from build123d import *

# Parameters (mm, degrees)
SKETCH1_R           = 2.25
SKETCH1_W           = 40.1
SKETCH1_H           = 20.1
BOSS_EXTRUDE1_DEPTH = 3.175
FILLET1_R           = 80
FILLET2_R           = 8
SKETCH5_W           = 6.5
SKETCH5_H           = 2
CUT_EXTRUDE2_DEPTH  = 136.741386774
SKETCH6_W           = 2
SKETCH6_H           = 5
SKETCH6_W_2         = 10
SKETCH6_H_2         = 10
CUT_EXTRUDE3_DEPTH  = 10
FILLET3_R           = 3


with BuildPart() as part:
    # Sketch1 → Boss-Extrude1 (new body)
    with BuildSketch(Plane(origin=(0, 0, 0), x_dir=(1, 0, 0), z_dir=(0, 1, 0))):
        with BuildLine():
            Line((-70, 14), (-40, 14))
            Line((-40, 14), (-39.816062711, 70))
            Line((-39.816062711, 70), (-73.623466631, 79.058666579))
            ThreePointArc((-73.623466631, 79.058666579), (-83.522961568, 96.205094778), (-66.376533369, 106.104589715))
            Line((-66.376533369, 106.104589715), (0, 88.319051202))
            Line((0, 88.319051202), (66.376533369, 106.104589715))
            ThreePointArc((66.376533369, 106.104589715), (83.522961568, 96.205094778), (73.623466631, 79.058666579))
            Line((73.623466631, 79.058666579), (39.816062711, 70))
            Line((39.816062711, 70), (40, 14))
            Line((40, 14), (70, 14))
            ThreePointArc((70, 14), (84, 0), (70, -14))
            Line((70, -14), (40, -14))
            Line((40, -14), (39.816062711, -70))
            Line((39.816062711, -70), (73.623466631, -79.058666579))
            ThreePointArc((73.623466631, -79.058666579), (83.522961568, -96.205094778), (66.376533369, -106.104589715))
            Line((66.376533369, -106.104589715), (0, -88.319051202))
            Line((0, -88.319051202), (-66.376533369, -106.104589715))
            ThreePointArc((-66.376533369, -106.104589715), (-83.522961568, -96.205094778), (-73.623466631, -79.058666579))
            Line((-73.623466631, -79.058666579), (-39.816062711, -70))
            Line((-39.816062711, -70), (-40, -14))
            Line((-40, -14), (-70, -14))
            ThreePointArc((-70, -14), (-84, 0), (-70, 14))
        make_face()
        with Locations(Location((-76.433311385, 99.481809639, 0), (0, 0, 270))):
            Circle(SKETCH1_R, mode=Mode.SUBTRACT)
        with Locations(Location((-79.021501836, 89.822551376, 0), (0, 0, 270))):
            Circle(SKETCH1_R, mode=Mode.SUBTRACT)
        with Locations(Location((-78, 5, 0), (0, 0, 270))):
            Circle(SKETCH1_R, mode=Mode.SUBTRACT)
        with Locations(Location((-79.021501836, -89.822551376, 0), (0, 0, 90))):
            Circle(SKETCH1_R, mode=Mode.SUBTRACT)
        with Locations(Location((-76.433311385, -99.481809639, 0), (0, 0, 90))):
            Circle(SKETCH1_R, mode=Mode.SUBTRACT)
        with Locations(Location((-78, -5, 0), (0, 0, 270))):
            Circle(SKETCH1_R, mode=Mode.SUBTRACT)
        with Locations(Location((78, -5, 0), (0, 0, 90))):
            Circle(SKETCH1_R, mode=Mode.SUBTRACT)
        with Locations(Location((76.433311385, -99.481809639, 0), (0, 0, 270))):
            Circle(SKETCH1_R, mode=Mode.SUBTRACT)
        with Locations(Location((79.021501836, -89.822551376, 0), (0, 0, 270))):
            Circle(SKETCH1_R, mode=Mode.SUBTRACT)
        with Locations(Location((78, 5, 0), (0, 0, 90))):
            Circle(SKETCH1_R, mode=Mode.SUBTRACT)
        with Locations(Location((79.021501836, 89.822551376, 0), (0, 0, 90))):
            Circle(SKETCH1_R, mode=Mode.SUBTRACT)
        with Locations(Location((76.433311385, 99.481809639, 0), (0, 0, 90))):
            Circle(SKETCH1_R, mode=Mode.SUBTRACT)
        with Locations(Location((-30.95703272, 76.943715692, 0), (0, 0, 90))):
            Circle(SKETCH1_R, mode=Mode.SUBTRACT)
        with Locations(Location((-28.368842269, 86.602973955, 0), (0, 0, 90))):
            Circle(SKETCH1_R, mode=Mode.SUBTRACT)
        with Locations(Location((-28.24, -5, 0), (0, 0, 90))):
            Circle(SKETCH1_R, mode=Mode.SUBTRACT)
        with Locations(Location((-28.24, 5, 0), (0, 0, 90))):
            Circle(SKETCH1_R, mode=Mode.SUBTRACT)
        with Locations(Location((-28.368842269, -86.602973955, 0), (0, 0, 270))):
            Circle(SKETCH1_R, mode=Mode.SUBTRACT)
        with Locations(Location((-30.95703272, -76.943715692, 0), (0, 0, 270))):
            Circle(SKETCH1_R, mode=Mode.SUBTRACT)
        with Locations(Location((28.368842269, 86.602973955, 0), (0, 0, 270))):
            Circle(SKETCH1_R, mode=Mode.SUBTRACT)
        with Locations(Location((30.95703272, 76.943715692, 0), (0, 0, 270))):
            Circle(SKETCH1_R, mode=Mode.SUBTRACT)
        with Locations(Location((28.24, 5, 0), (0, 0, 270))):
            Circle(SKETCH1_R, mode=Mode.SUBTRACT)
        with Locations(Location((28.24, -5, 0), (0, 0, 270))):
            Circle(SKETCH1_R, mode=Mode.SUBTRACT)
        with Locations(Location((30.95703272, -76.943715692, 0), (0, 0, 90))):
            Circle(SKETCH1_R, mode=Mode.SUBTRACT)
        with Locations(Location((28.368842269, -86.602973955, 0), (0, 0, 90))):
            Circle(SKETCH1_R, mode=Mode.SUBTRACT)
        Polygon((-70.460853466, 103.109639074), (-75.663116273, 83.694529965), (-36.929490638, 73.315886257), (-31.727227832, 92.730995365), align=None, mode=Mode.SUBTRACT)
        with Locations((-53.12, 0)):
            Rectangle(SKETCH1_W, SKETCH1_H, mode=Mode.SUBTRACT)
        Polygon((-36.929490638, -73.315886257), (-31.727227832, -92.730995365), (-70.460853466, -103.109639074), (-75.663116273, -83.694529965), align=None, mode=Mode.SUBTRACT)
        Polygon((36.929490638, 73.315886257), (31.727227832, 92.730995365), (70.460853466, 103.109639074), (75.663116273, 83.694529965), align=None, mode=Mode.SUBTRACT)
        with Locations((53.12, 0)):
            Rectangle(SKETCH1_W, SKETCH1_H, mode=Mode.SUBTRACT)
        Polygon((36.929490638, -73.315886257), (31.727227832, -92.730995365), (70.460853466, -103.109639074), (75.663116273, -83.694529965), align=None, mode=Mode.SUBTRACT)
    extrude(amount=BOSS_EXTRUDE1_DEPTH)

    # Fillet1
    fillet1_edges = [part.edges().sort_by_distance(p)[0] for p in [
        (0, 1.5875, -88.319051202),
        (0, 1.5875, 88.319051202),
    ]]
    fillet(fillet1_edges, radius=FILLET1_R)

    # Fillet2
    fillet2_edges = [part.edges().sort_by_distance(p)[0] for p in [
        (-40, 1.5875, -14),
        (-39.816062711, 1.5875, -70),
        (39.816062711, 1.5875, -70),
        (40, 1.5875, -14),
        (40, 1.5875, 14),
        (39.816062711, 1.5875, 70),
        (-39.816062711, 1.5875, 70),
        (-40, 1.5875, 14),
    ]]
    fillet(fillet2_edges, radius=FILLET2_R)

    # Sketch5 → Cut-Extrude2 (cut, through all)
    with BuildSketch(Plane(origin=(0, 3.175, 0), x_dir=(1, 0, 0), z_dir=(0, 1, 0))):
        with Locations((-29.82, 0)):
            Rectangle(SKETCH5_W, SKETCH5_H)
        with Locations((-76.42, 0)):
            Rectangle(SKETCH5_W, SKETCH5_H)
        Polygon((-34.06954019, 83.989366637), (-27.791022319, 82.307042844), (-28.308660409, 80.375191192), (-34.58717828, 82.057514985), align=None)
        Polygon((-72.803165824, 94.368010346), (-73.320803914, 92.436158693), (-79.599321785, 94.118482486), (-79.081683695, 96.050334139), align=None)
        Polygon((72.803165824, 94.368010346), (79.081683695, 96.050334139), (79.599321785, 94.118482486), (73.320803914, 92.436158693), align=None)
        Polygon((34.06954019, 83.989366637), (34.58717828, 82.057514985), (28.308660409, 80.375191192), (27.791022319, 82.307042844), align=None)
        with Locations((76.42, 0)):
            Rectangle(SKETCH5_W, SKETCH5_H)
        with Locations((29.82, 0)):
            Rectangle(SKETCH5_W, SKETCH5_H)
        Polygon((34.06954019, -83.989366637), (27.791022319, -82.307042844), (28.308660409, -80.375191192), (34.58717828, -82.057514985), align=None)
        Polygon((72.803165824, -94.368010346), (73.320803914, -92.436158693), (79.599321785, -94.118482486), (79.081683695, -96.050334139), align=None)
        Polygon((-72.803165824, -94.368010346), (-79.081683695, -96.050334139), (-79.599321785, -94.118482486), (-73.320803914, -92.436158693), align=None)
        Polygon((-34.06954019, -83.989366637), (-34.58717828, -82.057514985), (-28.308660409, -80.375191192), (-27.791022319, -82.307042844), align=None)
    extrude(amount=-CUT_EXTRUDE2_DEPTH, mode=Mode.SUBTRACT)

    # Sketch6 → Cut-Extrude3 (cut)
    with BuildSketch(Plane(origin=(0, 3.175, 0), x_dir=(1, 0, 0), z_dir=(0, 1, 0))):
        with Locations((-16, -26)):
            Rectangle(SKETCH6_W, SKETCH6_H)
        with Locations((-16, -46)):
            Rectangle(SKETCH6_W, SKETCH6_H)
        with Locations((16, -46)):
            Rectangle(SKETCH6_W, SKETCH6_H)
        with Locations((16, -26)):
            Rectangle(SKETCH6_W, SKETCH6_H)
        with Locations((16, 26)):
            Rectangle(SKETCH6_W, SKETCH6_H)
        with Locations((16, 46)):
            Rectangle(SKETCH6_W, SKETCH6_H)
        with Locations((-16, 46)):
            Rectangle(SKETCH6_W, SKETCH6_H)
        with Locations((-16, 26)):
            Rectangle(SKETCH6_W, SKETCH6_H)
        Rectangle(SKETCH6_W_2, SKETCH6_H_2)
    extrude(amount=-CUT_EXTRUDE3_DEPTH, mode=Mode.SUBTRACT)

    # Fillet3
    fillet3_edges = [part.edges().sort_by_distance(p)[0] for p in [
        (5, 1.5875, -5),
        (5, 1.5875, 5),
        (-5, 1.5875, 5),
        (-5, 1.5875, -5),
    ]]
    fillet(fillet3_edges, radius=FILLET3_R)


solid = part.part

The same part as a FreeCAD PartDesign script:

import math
import FreeCAD as App
import Part
import Sketcher
Q = App.Units.Quantity


def edges_at(feature, points):
    """Names of the edges that pass closest to the given points."""
    edges = feature.Shape.Edges
    near = lambda p: min(range(len(edges)), key=lambda i: edges[i].distToShape(Part.Vertex(*p))[0])
    return sorted({f"Edge{near(p) + 1}" for p in points})

doc = App.newDocument("Part")
body = doc.addObject("PartDesign::Body", "Body")

sketch1 = body.newObject("Sketcher::SketchObject", "Sketch")
sketch1.AttachmentSupport = (doc.getObject("XZ_Plane"), [""])
sketch1.MapMode = "FlatFace"
sketch1.addGeometry([
    Part.LineSegment(App.Vector(-40, -14, 0), App.Vector(-70, -14, 0)),
    Part.ArcOfCircle(Part.Circle(App.Vector(-70, 0, 0), App.Vector(0, 0, 1), 14), math.radians(90), math.radians(270)),
    Part.LineSegment(App.Vector(-70, 14, 0), App.Vector(-40, 14, 0)),
    Part.LineSegment(App.Vector(-40, 14, 0), App.Vector(-39.8, 70, 0)),
    Part.LineSegment(App.Vector(-39.8, 70, 0), App.Vector(-73.6, 79.1, 0)),
    Part.ArcOfCircle(Part.Circle(App.Vector(-70, 92.6, 0), App.Vector(0, 0, 1), 14), math.radians(75), math.radians(255)),
    Part.LineSegment(App.Vector(-66.4, 106.1, 0), App.Vector(0, 88.3, 0)),
    Part.LineSegment(App.Vector(0, 88.3, 0), App.Vector(66.4, 106.1, 0)),
    Part.ArcOfCircle(Part.Circle(App.Vector(70, 92.6, 0), App.Vector(0, 0, 1), 14), math.radians(-75), math.radians(105)),
    Part.LineSegment(App.Vector(73.6, 79.1, 0), App.Vector(39.8, 70, 0)),
    Part.LineSegment(App.Vector(39.8, 70, 0), App.Vector(40, 14, 0)),
    Part.LineSegment(App.Vector(40, 14, 0), App.Vector(70, 14, 0)),
    Part.ArcOfCircle(Part.Circle(App.Vector(70, 0, 0), App.Vector(0, 0, 1), 14), math.radians(-90), math.radians(90)),
    Part.LineSegment(App.Vector(70, -14, 0), App.Vector(40, -14, 0)),
    Part.LineSegment(App.Vector(40, -14, 0), App.Vector(39.8, -70, 0)),
    Part.LineSegment(App.Vector(39.8, -70, 0), App.Vector(73.6, -79.1, 0)),
    Part.ArcOfCircle(Part.Circle(App.Vector(70, -92.6, 0), App.Vector(0, 0, 1), 14), math.radians(-105), math.radians(75)),
    Part.LineSegment(App.Vector(66.4, -106.1, 0), App.Vector(0, -88.3, 0)),
    Part.LineSegment(App.Vector(0, -88.3, 0), App.Vector(-66.4, -106.1, 0)),
    Part.ArcOfCircle(Part.Circle(App.Vector(-70, -92.6, 0), App.Vector(0, 0, 1), 14), math.radians(105), math.radians(285)),
    Part.LineSegment(App.Vector(-73.6, -79.1, 0), App.Vector(-39.8, -70, 0)),
    Part.LineSegment(App.Vector(-39.8, -70, 0), App.Vector(-40, -14, 0)),
    Part.Circle(App.Vector(76.4, 99.5, 0), App.Vector(0, 0, 1), 2.2),
    Part.Circle(App.Vector(79, 89.8, 0), App.Vector(0, 0, 1), 2.2),
    Part.LineSegment(App.Vector(36.9, 73.3, 0), App.Vector(75.7, 83.7, 0)),
    Part.LineSegment(App.Vector(75.7, 83.7, 0), App.Vector(70.5, 103.1, 0)),
    Part.LineSegment(App.Vector(70.5, 103.1, 0), App.Vector(31.7, 92.7, 0)),
    Part.LineSegment(App.Vector(31.7, 92.7, 0), App.Vector(36.9, 73.3, 0)),
    Part.Circle(App.Vector(28.4, 86.6, 0), App.Vector(0, 0, 1), 2.2),
    Part.Circle(App.Vector(31, 76.9, 0), App.Vector(0, 0, 1), 2.2),
    Part.Circle(App.Vector(78, 5, 0), App.Vector(0, 0, 1), 2.2),
    Part.Circle(App.Vector(28.2, 5, 0), App.Vector(0, 0, 1), 2.2),
    Part.Circle(App.Vector(-28.4, 86.6, 0), App.Vector(0, 0, 1), 2.2),
    Part.Circle(App.Vector(-31, 76.9, 0), App.Vector(0, 0, 1), 2.2),
    Part.LineSegment(App.Vector(-36.9, 73.3, 0), App.Vector(-31.7, 92.7, 0)),
    Part.LineSegment(App.Vector(-31.7, 92.7, 0), App.Vector(-70.5, 103.1, 0)),
    Part.LineSegment(App.Vector(-70.5, 103.1, 0), App.Vector(-75.7, 83.7, 0)),
    Part.LineSegment(App.Vector(-75.7, 83.7, 0), App.Vector(-36.9, 73.3, 0)),
    Part.Circle(App.Vector(-76.4, 99.5, 0), App.Vector(0, 0, 1), 2.2),
    Part.Circle(App.Vector(-79, 89.8, 0), App.Vector(0, 0, 1), 2.2),
    Part.Circle(App.Vector(-28.2, 5, 0), App.Vector(0, 0, 1), 2.2),
    Part.Circle(App.Vector(-78, 5, 0), App.Vector(0, 0, 1), 2.2),
    Part.Circle(App.Vector(78, -5, 0), App.Vector(0, 0, 1), 2.2),
    Part.LineSegment(App.Vector(33.1, 10.1, 0), App.Vector(33.1, -10.1, 0)),
    Part.LineSegment(App.Vector(33.1, -10.1, 0), App.Vector(73.2, -10.1, 0)),
    Part.LineSegment(App.Vector(73.2, -10.1, 0), App.Vector(73.2, 10.1, 0)),
    Part.LineSegment(App.Vector(73.2, 10.1, 0), App.Vector(33.1, 10.1, 0)),
    Part.Circle(App.Vector(28.2, -5, 0), App.Vector(0, 0, 1), 2.2),
    Part.Circle(App.Vector(79, -89.8, 0), App.Vector(0, 0, 1), 2.2),
    Part.Circle(App.Vector(76.4, -99.5, 0), App.Vector(0, 0, 1), 2.2),
    Part.LineSegment(App.Vector(36.9, -73.3, 0), App.Vector(31.7, -92.7, 0)),
    Part.LineSegment(App.Vector(31.7, -92.7, 0), App.Vector(70.5, -103.1, 0)),
    Part.LineSegment(App.Vector(70.5, -103.1, 0), App.Vector(75.7, -83.7, 0)),
    Part.LineSegment(App.Vector(75.7, -83.7, 0), App.Vector(36.9, -73.3, 0)),
    Part.Circle(App.Vector(31, -76.9, 0), App.Vector(0, 0, 1), 2.2),
    Part.Circle(App.Vector(28.4, -86.6, 0), App.Vector(0, 0, 1), 2.2),
    Part.Circle(App.Vector(-28.2, -5, 0), App.Vector(0, 0, 1), 2.2),
    Part.LineSegment(App.Vector(-73.2, 10.1, 0), App.Vector(-73.2, -10.1, 0)),
    Part.LineSegment(App.Vector(-73.2, -10.1, 0), App.Vector(-33.1, -10.1, 0)),
    Part.LineSegment(App.Vector(-33.1, -10.1, 0), App.Vector(-33.1, 10.1, 0)),
    Part.LineSegment(App.Vector(-33.1, 10.1, 0), App.Vector(-73.2, 10.1, 0)),
    Part.Circle(App.Vector(-78, -5, 0), App.Vector(0, 0, 1), 2.2),
    Part.Circle(App.Vector(-31, -76.9, 0), App.Vector(0, 0, 1), 2.2),
    Part.Circle(App.Vector(-28.4, -86.6, 0), App.Vector(0, 0, 1), 2.2),
    Part.LineSegment(App.Vector(-70.5, -103.1, 0), App.Vector(-31.7, -92.7, 0)),
    Part.LineSegment(App.Vector(-31.7, -92.7, 0), App.Vector(-36.9, -73.3, 0)),
    Part.LineSegment(App.Vector(-36.9, -73.3, 0), App.Vector(-75.7, -83.7, 0)),
    Part.LineSegment(App.Vector(-75.7, -83.7, 0), App.Vector(-70.5, -103.1, 0)),
    Part.Circle(App.Vector(-79, -89.8, 0), App.Vector(0, 0, 1), 2.2),
    Part.Circle(App.Vector(-76.4, -99.5, 0), App.Vector(0, 0, 1), 2.2),
], False)
sketch1.addConstraint([
    Sketcher.Constraint("Tangent", 0, 2, 1, 2),
    Sketcher.Constraint("Tangent", 1, 1, 2, 1),
    Sketcher.Constraint("Coincident", 2, 2, 3, 1),
    Sketcher.Constraint("Coincident", 3, 2, 4, 1),
    Sketcher.Constraint("Tangent", 4, 2, 5, 2),
    Sketcher.Constraint("Tangent", 5, 1, 6, 1),
    Sketcher.Constraint("Coincident", 6, 2, 7, 1),
    Sketcher.Constraint("Tangent", 7, 2, 8, 2),
    Sketcher.Constraint("Tangent", 8, 1, 9, 1),
    Sketcher.Constraint("Coincident", 9, 2, 10, 1),
    Sketcher.Constraint("Coincident", 10, 2, 11, 1),
    Sketcher.Constraint("Tangent", 11, 2, 12, 2),
    Sketcher.Constraint("Tangent", 12, 1, 13, 1),
    Sketcher.Constraint("Coincident", 13, 2, 14, 1),
    Sketcher.Constraint("Coincident", 14, 2, 15, 1),
    Sketcher.Constraint("Tangent", 15, 2, 16, 2),
    Sketcher.Constraint("Tangent", 16, 1, 17, 1),
    Sketcher.Constraint("Coincident", 17, 2, 18, 1),
    Sketcher.Constraint("Tangent", 18, 2, 19, 2),
    Sketcher.Constraint("Tangent", 19, 1, 20, 1),
    Sketcher.Constraint("Coincident", 20, 2, 21, 1),
    Sketcher.Constraint("Coincident", 21, 2, 0, 1),
    Sketcher.Constraint("Coincident", 24, 2, 25, 1),
    Sketcher.Constraint("Coincident", 25, 2, 26, 1),
    Sketcher.Constraint("Coincident", 26, 2, 27, 1),
    Sketcher.Constraint("Coincident", 27, 2, 24, 1),
    Sketcher.Constraint("Coincident", 34, 2, 35, 1),
    Sketcher.Constraint("Coincident", 35, 2, 36, 1),
    Sketcher.Constraint("Coincident", 36, 2, 37, 1),
    Sketcher.Constraint("Coincident", 37, 2, 34, 1),
    Sketcher.Constraint("Coincident", 43, 2, 44, 1),
    Sketcher.Constraint("Coincident", 44, 2, 45, 1),
    Sketcher.Constraint("Coincident", 45, 2, 46, 1),
    Sketcher.Constraint("Coincident", 46, 2, 43, 1),
    Sketcher.Constraint("Coincident", 50, 2, 51, 1),
    Sketcher.Constraint("Coincident", 51, 2, 52, 1),
    Sketcher.Constraint("Coincident", 52, 2, 53, 1),
    Sketcher.Constraint("Coincident", 53, 2, 50, 1),
    Sketcher.Constraint("Coincident", 57, 2, 58, 1),
    Sketcher.Constraint("Coincident", 58, 2, 59, 1),
    Sketcher.Constraint("Coincident", 59, 2, 60, 1),
    Sketcher.Constraint("Coincident", 60, 2, 57, 1),
    Sketcher.Constraint("Coincident", 64, 2, 65, 1),
    Sketcher.Constraint("Coincident", 65, 2, 66, 1),
    Sketcher.Constraint("Coincident", 66, 2, 67, 1),
    Sketcher.Constraint("Coincident", 67, 2, 64, 1),
    Sketcher.Constraint("Horizontal", 0),
    Sketcher.Constraint("Horizontal", 2),
    Sketcher.Constraint("Horizontal", 11),
    Sketcher.Constraint("Horizontal", 13),
    Sketcher.Constraint("Vertical", 43),
    Sketcher.Constraint("Horizontal", 44),
    Sketcher.Constraint("Vertical", 45),
    Sketcher.Constraint("Horizontal", 46),
    Sketcher.Constraint("Vertical", 57),
    Sketcher.Constraint("Horizontal", 58),
    Sketcher.Constraint("Vertical", 59),
    Sketcher.Constraint("Horizontal", 60),
    Sketcher.Constraint("Equal", 1, 5),
    Sketcher.Constraint("Equal", 5, 8),
    Sketcher.Constraint("Equal", 8, 12),
    Sketcher.Constraint("Equal", 12, 16),
    Sketcher.Constraint("Equal", 16, 19),
    Sketcher.Constraint("Equal", 22, 23),
    Sketcher.Constraint("Equal", 23, 28),
    Sketcher.Constraint("Equal", 28, 29),
    Sketcher.Constraint("Equal", 29, 30),
    Sketcher.Constraint("Equal", 30, 31),
    Sketcher.Constraint("Equal", 31, 32),
    Sketcher.Constraint("Equal", 32, 33),
    Sketcher.Constraint("Equal", 33, 38),
    Sketcher.Constraint("Equal", 38, 39),
    Sketcher.Constraint("Equal", 39, 40),
    Sketcher.Constraint("Equal", 40, 41),
    Sketcher.Constraint("Equal", 41, 42),
    Sketcher.Constraint("Equal", 42, 47),
    Sketcher.Constraint("Equal", 47, 48),
    Sketcher.Constraint("Equal", 48, 49),
    Sketcher.Constraint("Equal", 49, 54),
    Sketcher.Constraint("Equal", 54, 55),
    Sketcher.Constraint("Equal", 55, 56),
    Sketcher.Constraint("Equal", 56, 61),
    Sketcher.Constraint("Equal", 61, 62),
    Sketcher.Constraint("Equal", 62, 63),
    Sketcher.Constraint("Equal", 63, 68),
    Sketcher.Constraint("Equal", 68, 69),
    Sketcher.Constraint("Symmetric", 1, 3, 12, 3, -1, 1),
    Sketcher.Constraint("Symmetric", 5, 3, 16, 3, -1, 1),
    Sketcher.Constraint("Symmetric", 8, 3, 19, 3, -1, 1),
    Sketcher.Constraint("Symmetric", 41, 3, 42, 3, -1, 1),
    Sketcher.Constraint("Symmetric", 40, 3, 47, 3, -1, 1),
    Sketcher.Constraint("Symmetric", 39, 3, 48, 3, -1, 1),
    Sketcher.Constraint("Symmetric", 38, 3, 49, 3, -1, 1),
    Sketcher.Constraint("Symmetric", 33, 3, 54, 3, -1, 1),
    Sketcher.Constraint("Symmetric", 32, 3, 55, 3, -1, 1),
    Sketcher.Constraint("Symmetric", 31, 3, 56, 3, -1, 1),
    Sketcher.Constraint("Symmetric", 30, 3, 61, 3, -1, 1),
    Sketcher.Constraint("Symmetric", 29, 3, 62, 3, -1, 1),
    Sketcher.Constraint("Symmetric", 28, 3, 63, 3, -1, 1),
    Sketcher.Constraint("Symmetric", 23, 3, 68, 3, -1, 1),
    Sketcher.Constraint("Symmetric", 22, 3, 69, 3, -1, 1),
    Sketcher.Constraint("Symmetric", 3, 2, 14, 2, -1, 1),
    Sketcher.Constraint("Symmetric", 6, 2, 17, 2, -1, 1),
    Sketcher.Constraint("Symmetric", 9, 2, 20, 2, -1, 1),
    Sketcher.Constraint("Symmetric", 34, 2, 50, 2, -1, 1),
    Sketcher.Constraint("Symmetric", 35, 2, 51, 2, -1, 1),
    Sketcher.Constraint("Symmetric", 36, 2, 52, 2, -1, 1),
    Sketcher.Constraint("Symmetric", 37, 2, 53, 2, -1, 1),
    Sketcher.Constraint("Symmetric", 45, 2, 57, 2, -1, 1),
    Sketcher.Constraint("Symmetric", 43, 2, 59, 2, -1, 1),
    Sketcher.Constraint("Symmetric", 26, 2, 64, 2, -1, 1),
    Sketcher.Constraint("Symmetric", 27, 2, 65, 2, -1, 1),
    Sketcher.Constraint("Symmetric", 24, 2, 66, 2, -1, 1),
    Sketcher.Constraint("Symmetric", 25, 2, 67, 2, -1, 1),
    Sketcher.Constraint("Symmetric", 5, 3, 8, 3, -2),
    Sketcher.Constraint("Symmetric", 28, 3, 32, 3, -2),
    Sketcher.Constraint("Symmetric", 29, 3, 33, 3, -2),
    Sketcher.Constraint("Symmetric", 22, 3, 38, 3, -2),
    Sketcher.Constraint("Symmetric", 23, 3, 39, 3, -2),
    Sketcher.Constraint("Symmetric", 31, 3, 40, 3, -2),
    Sketcher.Constraint("Symmetric", 30, 3, 41, 3, -2),
    Sketcher.Constraint("Symmetric", 3, 2, 9, 2, -2),
    Sketcher.Constraint("Symmetric", 2, 2, 10, 2, -2),
    Sketcher.Constraint("Symmetric", 26, 2, 34, 2, -2),
    Sketcher.Constraint("Symmetric", 25, 2, 35, 2, -2),
    Sketcher.Constraint("Symmetric", 24, 2, 36, 2, -2),
    Sketcher.Constraint("Symmetric", 27, 2, 37, 2, -2),
    Sketcher.Constraint("PointOnObject", 6, 2, -2),
    Sketcher.Constraint("Parallel", 4, 6),
    Sketcher.Constraint("Parallel", 3, 14),
    Sketcher.Constraint("Parallel", 10, 21),
    Sketcher.Constraint("Parallel", 20, 24),
    Sketcher.Constraint("Perpendicular", 24, 25),
    Sketcher.Constraint("Perpendicular", 25, 26),
    Sketcher.Constraint("Perpendicular", 26, 27),
    Sketcher.Constraint("Horizontal", 30, 3, 31, 3),
    Sketcher.Constraint("Horizontal", 44, 2, 57, 2),
    Sketcher.Constraint("Vertical", 1, 3, 5, 3),
    Sketcher.Constraint("Radius", 1, Q("14 mm")),
    Sketcher.Constraint("Diameter", 22, Q("4.5 mm")),
    Sketcher.Constraint("DistanceX", 0, 2, 0, 1, Q("30 mm")),
    Sketcher.Constraint("Angle", 4, Q("165 deg")),
    Sketcher.Constraint("Distance", 4, Q("35 mm")),
    Sketcher.Constraint("DistanceX", 44, 1, 44, 2, Q("40.1 mm")),
    Sketcher.Constraint("DistanceY", 43, 2, 43, 1, Q("20.1 mm")),
    Sketcher.Constraint("DistanceX", 1, 3, -1, 1, Q("70 mm")),
    Sketcher.Constraint("DistanceX", -1, 1, 30, 3, Q("78 mm")),
    Sketcher.Constraint("DistanceY", -1, 1, 30, 3, Q("5 mm")),
    Sketcher.Constraint("DistanceY", -1, 1, 3, 2, Q("70 mm")),
    Sketcher.Constraint("Distance", 24, Q("40.1 mm")),
    Sketcher.Constraint("Distance", 25, Q("20.1 mm")),
    Sketcher.Constraint("DistanceX", -1, 1, 31, 3, Q("28.24 mm")),
    Sketcher.Constraint("DistanceX", -1, 1, 43, 2, Q("33.07 mm")),
    Sketcher.Constraint("DistanceX", -1, 1, 23, 3, Q("79.021502 mm")),
    Sketcher.Constraint("DistanceX", -1, 1, 22, 3, Q("76.433311 mm")),
    Sketcher.Constraint("DistanceY", -1, 1, 22, 3, Q("99.48181 mm")),
    Sketcher.Constraint("DistanceY", -1, 1, 23, 3, Q("89.822551 mm")),
    Sketcher.Constraint("DistanceY", -1, 1, 24, 2, Q("83.69453 mm")),
    Sketcher.Constraint("DistanceX", -1, 1, 27, 2, Q("36.929491 mm")),
    Sketcher.Constraint("DistanceX", -1, 1, 28, 3, Q("28.368842 mm")),
    Sketcher.Constraint("DistanceY", -1, 1, 28, 3, Q("86.602974 mm")),
    Sketcher.Constraint("DistanceX", -1, 1, 29, 3, Q("30.957033 mm")),
    Sketcher.Constraint("DistanceY", -1, 1, 29, 3, Q("76.943716 mm")),
])
pad1 = body.newObject("PartDesign::Pad", "Pad")
pad1.Profile = sketch1
pad1.Length = 3.175
pad1.Reversed = True
doc.recompute()

fillet = body.newObject("PartDesign::Fillet", "Fillet")
fillet.Base = (pad1, edges_at(pad1, [(0, 1.587, -88.319), (0, 1.587, 88.319)]))
fillet.Radius = 80
doc.recompute()

fillet2 = body.newObject("PartDesign::Fillet", "Fillet001")
fillet2.Base = (fillet, edges_at(fillet, [
    (-40, 1.587, -14),
    (-39.816, 1.587, -70),
    (39.816, 1.587, -70),
    (40, 1.587, -14),
    (40, 1.587, 14),
    (39.816, 1.587, 70),
    (-39.816, 1.587, 70),
    (-40, 1.587, 14),
]))
fillet2.Radius = 8

sketch2 = body.newObject("Sketcher::SketchObject", "Sketch001")
sketch2.AttachmentSupport = (doc.getObject("XZ_Plane"), [""])
sketch2.MapMode = "FlatFace"
sketch2.AttachmentOffset = App.Placement(App.Vector(0, 0, -3.175), App.Rotation())
sketch2.addGeometry([
    Part.LineSegment(App.Vector(-33.1, -1, 0), App.Vector(-33.1, 1, 0)),
    Part.LineSegment(App.Vector(-33.1, 1, 0), App.Vector(-26.6, 1, 0)),
    Part.LineSegment(App.Vector(-26.6, 1, 0), App.Vector(-26.6, -1, 0)),
    Part.LineSegment(App.Vector(-26.6, -1, 0), App.Vector(-33.1, -1, 0)),
    Part.LineSegment(App.Vector(-79.7, -1, 0), App.Vector(-79.7, 1, 0)),
    Part.LineSegment(App.Vector(-79.7, 1, 0), App.Vector(-73.2, 1, 0)),
    Part.LineSegment(App.Vector(-73.2, 1, 0), App.Vector(-73.2, -1, 0)),
    Part.LineSegment(App.Vector(-73.2, -1, 0), App.Vector(-79.7, -1, 0)),
    Part.LineSegment(App.Vector(-27.8, -82.3, 0), App.Vector(-34.1, -84, 0)),
    Part.LineSegment(App.Vector(-34.1, -84, 0), App.Vector(-34.6, -82.1, 0)),
    Part.LineSegment(App.Vector(-34.6, -82.1, 0), App.Vector(-28.3, -80.4, 0)),
    Part.LineSegment(App.Vector(-28.3, -80.4, 0), App.Vector(-27.8, -82.3, 0)),
    Part.LineSegment(App.Vector(-73.3, -92.4, 0), App.Vector(-72.8, -94.4, 0)),
    Part.LineSegment(App.Vector(-72.8, -94.4, 0), App.Vector(-79.1, -96.1, 0)),
    Part.LineSegment(App.Vector(-79.1, -96.1, 0), App.Vector(-79.6, -94.1, 0)),
    Part.LineSegment(App.Vector(-79.6, -94.1, 0), App.Vector(-73.3, -92.4, 0)),
    Part.LineSegment(App.Vector(79.1, -96.1, 0), App.Vector(72.8, -94.4, 0)),
    Part.LineSegment(App.Vector(72.8, -94.4, 0), App.Vector(73.3, -92.4, 0)),
    Part.LineSegment(App.Vector(73.3, -92.4, 0), App.Vector(79.6, -94.1, 0)),
    Part.LineSegment(App.Vector(79.6, -94.1, 0), App.Vector(79.1, -96.1, 0)),
    Part.LineSegment(App.Vector(34.6, -82.1, 0), App.Vector(34.1, -84, 0)),
    Part.LineSegment(App.Vector(34.1, -84, 0), App.Vector(27.8, -82.3, 0)),
    Part.LineSegment(App.Vector(27.8, -82.3, 0), App.Vector(28.3, -80.4, 0)),
    Part.LineSegment(App.Vector(28.3, -80.4, 0), App.Vector(34.6, -82.1, 0)),
    Part.LineSegment(App.Vector(73.2, -1, 0), App.Vector(73.2, 1, 0)),
    Part.LineSegment(App.Vector(73.2, 1, 0), App.Vector(79.7, 1, 0)),
    Part.LineSegment(App.Vector(79.7, 1, 0), App.Vector(79.7, -1, 0)),
    Part.LineSegment(App.Vector(79.7, -1, 0), App.Vector(73.2, -1, 0)),
    Part.LineSegment(App.Vector(26.6, -1, 0), App.Vector(26.6, 1, 0)),
    Part.LineSegment(App.Vector(26.6, 1, 0), App.Vector(33.1, 1, 0)),
    Part.LineSegment(App.Vector(33.1, 1, 0), App.Vector(33.1, -1, 0)),
    Part.LineSegment(App.Vector(33.1, -1, 0), App.Vector(26.6, -1, 0)),
    Part.LineSegment(App.Vector(27.8, 82.3, 0), App.Vector(34.1, 84, 0)),
    Part.LineSegment(App.Vector(34.1, 84, 0), App.Vector(34.6, 82.1, 0)),
    Part.LineSegment(App.Vector(34.6, 82.1, 0), App.Vector(28.3, 80.4, 0)),
    Part.LineSegment(App.Vector(28.3, 80.4, 0), App.Vector(27.8, 82.3, 0)),
    Part.LineSegment(App.Vector(73.3, 92.4, 0), App.Vector(72.8, 94.4, 0)),
    Part.LineSegment(App.Vector(72.8, 94.4, 0), App.Vector(79.1, 96.1, 0)),
    Part.LineSegment(App.Vector(79.1, 96.1, 0), App.Vector(79.6, 94.1, 0)),
    Part.LineSegment(App.Vector(79.6, 94.1, 0), App.Vector(73.3, 92.4, 0)),
    Part.LineSegment(App.Vector(-79.1, 96.1, 0), App.Vector(-72.8, 94.4, 0)),
    Part.LineSegment(App.Vector(-72.8, 94.4, 0), App.Vector(-73.3, 92.4, 0)),
    Part.LineSegment(App.Vector(-73.3, 92.4, 0), App.Vector(-79.6, 94.1, 0)),
    Part.LineSegment(App.Vector(-79.6, 94.1, 0), App.Vector(-79.1, 96.1, 0)),
    Part.LineSegment(App.Vector(-34.6, 82.1, 0), App.Vector(-34.1, 84, 0)),
    Part.LineSegment(App.Vector(-34.1, 84, 0), App.Vector(-27.8, 82.3, 0)),
    Part.LineSegment(App.Vector(-27.8, 82.3, 0), App.Vector(-28.3, 80.4, 0)),
    Part.LineSegment(App.Vector(-28.3, 80.4, 0), App.Vector(-34.6, 82.1, 0)),
], False)
sketch2.addConstraint([
    Sketcher.Constraint("Coincident", 0, 2, 1, 1),
    Sketcher.Constraint("Coincident", 1, 2, 2, 1),
    Sketcher.Constraint("Coincident", 2, 2, 3, 1),
    Sketcher.Constraint("Coincident", 3, 2, 0, 1),
    Sketcher.Constraint("Coincident", 4, 2, 5, 1),
    Sketcher.Constraint("Coincident", 5, 2, 6, 1),
    Sketcher.Constraint("Coincident", 6, 2, 7, 1),
    Sketcher.Constraint("Coincident", 7, 2, 4, 1),
    Sketcher.Constraint("Coincident", 8, 2, 9, 1),
    Sketcher.Constraint("Coincident", 9, 2, 10, 1),
    Sketcher.Constraint("Coincident", 10, 2, 11, 1),
    Sketcher.Constraint("Coincident", 11, 2, 8, 1),
    Sketcher.Constraint("Coincident", 12, 2, 13, 1),
    Sketcher.Constraint("Coincident", 13, 2, 14, 1),
    Sketcher.Constraint("Coincident", 14, 2, 15, 1),
    Sketcher.Constraint("Coincident", 15, 2, 12, 1),
    Sketcher.Constraint("Coincident", 16, 2, 17, 1),
    Sketcher.Constraint("Coincident", 17, 2, 18, 1),
    Sketcher.Constraint("Coincident", 18, 2, 19, 1),
    Sketcher.Constraint("Coincident", 19, 2, 16, 1),
    Sketcher.Constraint("Coincident", 20, 2, 21, 1),
    Sketcher.Constraint("Coincident", 21, 2, 22, 1),
    Sketcher.Constraint("Coincident", 22, 2, 23, 1),
    Sketcher.Constraint("Coincident", 23, 2, 20, 1),
    Sketcher.Constraint("Coincident", 24, 2, 25, 1),
    Sketcher.Constraint("Coincident", 25, 2, 26, 1),
    Sketcher.Constraint("Coincident", 26, 2, 27, 1),
    Sketcher.Constraint("Coincident", 27, 2, 24, 1),
    Sketcher.Constraint("Coincident", 28, 2, 29, 1),
    Sketcher.Constraint("Coincident", 29, 2, 30, 1),
    Sketcher.Constraint("Coincident", 30, 2, 31, 1),
    Sketcher.Constraint("Coincident", 31, 2, 28, 1),
    Sketcher.Constraint("Coincident", 32, 2, 33, 1),
    Sketcher.Constraint("Coincident", 33, 2, 34, 1),
    Sketcher.Constraint("Coincident", 34, 2, 35, 1),
    Sketcher.Constraint("Coincident", 35, 2, 32, 1),
    Sketcher.Constraint("Coincident", 36, 2, 37, 1),
    Sketcher.Constraint("Coincident", 37, 2, 38, 1),
    Sketcher.Constraint("Coincident", 38, 2, 39, 1),
    Sketcher.Constraint("Coincident", 39, 2, 36, 1),
    Sketcher.Constraint("Coincident", 40, 2, 41, 1),
    Sketcher.Constraint("Coincident", 41, 2, 42, 1),
    Sketcher.Constraint("Coincident", 42, 2, 43, 1),
    Sketcher.Constraint("Coincident", 43, 2, 40, 1),
    Sketcher.Constraint("Coincident", 44, 2, 45, 1),
    Sketcher.Constraint("Coincident", 45, 2, 46, 1),
    Sketcher.Constraint("Coincident", 46, 2, 47, 1),
    Sketcher.Constraint("Coincident", 47, 2, 44, 1),
    Sketcher.Constraint("Vertical", 0),
    Sketcher.Constraint("Horizontal", 1),
    Sketcher.Constraint("Vertical", 2),
    Sketcher.Constraint("Horizontal", 3),
    Sketcher.Constraint("Vertical", 4),
    Sketcher.Constraint("Horizontal", 5),
    Sketcher.Constraint("Vertical", 6),
    Sketcher.Constraint("Horizontal", 7),
    Sketcher.Constraint("Vertical", 24),
    Sketcher.Constraint("Horizontal", 25),
    Sketcher.Constraint("Vertical", 26),
    Sketcher.Constraint("Horizontal", 27),
    Sketcher.Constraint("Vertical", 28),
    Sketcher.Constraint("Horizontal", 29),
    Sketcher.Constraint("Vertical", 30),
    Sketcher.Constraint("Horizontal", 31),
    Sketcher.Constraint("Symmetric", 6, 2, 24, 2, -1, 1),
    Sketcher.Constraint("Symmetric", 4, 2, 26, 2, -1, 1),
    Sketcher.Constraint("Symmetric", 2, 2, 28, 2, -1, 1),
    Sketcher.Constraint("Symmetric", 0, 2, 30, 2, -1, 1),
    Sketcher.Constraint("Symmetric", 8, 2, 32, 2, -1, 1),
    Sketcher.Constraint("Symmetric", 9, 2, 33, 2, -1, 1),
    Sketcher.Constraint("Symmetric", 10, 2, 34, 2, -1, 1),
    Sketcher.Constraint("Symmetric", 11, 2, 35, 2, -1, 1),
    Sketcher.Constraint("Symmetric", 12, 2, 36, 2, -1, 1),
    Sketcher.Constraint("Symmetric", 13, 2, 37, 2, -1, 1),
    Sketcher.Constraint("Symmetric", 14, 2, 38, 2, -1, 1),
    Sketcher.Constraint("Symmetric", 15, 2, 39, 2, -1, 1),
    Sketcher.Constraint("Symmetric", 16, 2, 40, 2, -1, 1),
    Sketcher.Constraint("Symmetric", 17, 2, 41, 2, -1, 1),
    Sketcher.Constraint("Symmetric", 18, 2, 42, 2, -1, 1),
    Sketcher.Constraint("Symmetric", 19, 2, 43, 2, -1, 1),
    Sketcher.Constraint("Symmetric", 20, 2, 44, 2, -1, 1),
    Sketcher.Constraint("Symmetric", 21, 2, 45, 2, -1, 1),
    Sketcher.Constraint("Symmetric", 22, 2, 46, 2, -1, 1),
    Sketcher.Constraint("Symmetric", 23, 2, 47, 2, -1, 1),
    Sketcher.Constraint("Symmetric", 12, 2, 16, 2, -2),
    Sketcher.Constraint("Symmetric", 15, 2, 17, 2, -2),
    Sketcher.Constraint("Symmetric", 14, 2, 18, 2, -2),
    Sketcher.Constraint("Symmetric", 13, 2, 19, 2, -2),
    Sketcher.Constraint("Symmetric", 8, 2, 20, 2, -2),
    Sketcher.Constraint("Symmetric", 11, 2, 21, 2, -2),
    Sketcher.Constraint("Symmetric", 10, 2, 22, 2, -2),
    Sketcher.Constraint("Symmetric", 9, 2, 23, 2, -2),
    Sketcher.Constraint("Perpendicular", 8, 9),
    Sketcher.Constraint("Perpendicular", 9, 10),
    Sketcher.Constraint("Perpendicular", 10, 11),
    Sketcher.Constraint("Parallel", 11, 12),
    Sketcher.Constraint("Perpendicular", 12, 13),
    Sketcher.Constraint("Perpendicular", 13, 14),
    Sketcher.Constraint("Perpendicular", 14, 15),
    Sketcher.Constraint("Horizontal", 1, 2, 4, 2),
    Sketcher.Constraint("Horizontal", 3, 2, 6, 2),
    Sketcher.Constraint("Horizontal", 5, 2, 24, 2),
    Sketcher.Constraint("Equal", 3, 5),
    Sketcher.Constraint("Equal", 11, 12),
    Sketcher.Constraint("Equal", 10, 13),
    Sketcher.Constraint("DistanceY", 0, 1, 0, 2, Q("2 mm")),
    Sketcher.Constraint("Angle", 8, Q("-165 deg")),
    Sketcher.Constraint("Distance", 9, Q("2 mm")),
    Sketcher.Constraint("DistanceX", 1, 1, 1, 2, Q("6.5 mm")),
    Sketcher.Constraint("Distance", 8, Q("6.5 mm")),
    Sketcher.Constraint("DistanceX", 4, 2, 0, 2, Q("46.6 mm")),
    Sketcher.Constraint("DistanceX", 0, 2, -1, 1, Q("33.07 mm")),
    Sketcher.Constraint("DistanceX", 21, 2, 18, 2, Q("51.808299 mm")),
    Sketcher.Constraint("DistanceX", 8, 2, -1, 1, Q("34.06954 mm")),
    Sketcher.Constraint("DistanceY", 10, 2, -1, 1, Q("80.375191 mm")),
    Sketcher.Constraint("DistanceY", 12, 2, -1, 1, Q("94.36801 mm")),
])
pocket1 = body.newObject("PartDesign::Pocket", "Pocket")
pocket1.Profile = sketch2
pocket1.Type = "ThroughAll"
pocket1.Reversed = True

sketch3 = body.newObject("Sketcher::SketchObject", "Sketch002")
sketch3.AttachmentSupport = (doc.getObject("XZ_Plane"), [""])
sketch3.MapMode = "FlatFace"
sketch3.AttachmentOffset = App.Placement(App.Vector(0, 0, -3.175), App.Rotation())
sketch3.addGeometry([
    Part.LineSegment(App.Vector(-17, 23.5, 0), App.Vector(-17, 28.5, 0)),
    Part.LineSegment(App.Vector(-17, 28.5, 0), App.Vector(-15, 28.5, 0)),
    Part.LineSegment(App.Vector(-15, 28.5, 0), App.Vector(-15, 23.5, 0)),
    Part.LineSegment(App.Vector(-15, 23.5, 0), App.Vector(-17, 23.5, 0)),
    Part.LineSegment(App.Vector(-17, 43.5, 0), App.Vector(-17, 48.5, 0)),
    Part.LineSegment(App.Vector(-17, 48.5, 0), App.Vector(-15, 48.5, 0)),
    Part.LineSegment(App.Vector(-15, 48.5, 0), App.Vector(-15, 43.5, 0)),
    Part.LineSegment(App.Vector(-15, 43.5, 0), App.Vector(-17, 43.5, 0)),
    Part.LineSegment(App.Vector(15, 43.5, 0), App.Vector(15, 48.5, 0)),
    Part.LineSegment(App.Vector(15, 48.5, 0), App.Vector(17, 48.5, 0)),
    Part.LineSegment(App.Vector(17, 48.5, 0), App.Vector(17, 43.5, 0)),
    Part.LineSegment(App.Vector(17, 43.5, 0), App.Vector(15, 43.5, 0)),
    Part.LineSegment(App.Vector(15, 23.5, 0), App.Vector(15, 28.5, 0)),
    Part.LineSegment(App.Vector(15, 28.5, 0), App.Vector(17, 28.5, 0)),
    Part.LineSegment(App.Vector(17, 28.5, 0), App.Vector(17, 23.5, 0)),
    Part.LineSegment(App.Vector(17, 23.5, 0), App.Vector(15, 23.5, 0)),
    Part.LineSegment(App.Vector(15, -28.5, 0), App.Vector(15, -23.5, 0)),
    Part.LineSegment(App.Vector(15, -23.5, 0), App.Vector(17, -23.5, 0)),
    Part.LineSegment(App.Vector(17, -23.5, 0), App.Vector(17, -28.5, 0)),
    Part.LineSegment(App.Vector(17, -28.5, 0), App.Vector(15, -28.5, 0)),
    Part.LineSegment(App.Vector(15, -48.5, 0), App.Vector(15, -43.5, 0)),
    Part.LineSegment(App.Vector(15, -43.5, 0), App.Vector(17, -43.5, 0)),
    Part.LineSegment(App.Vector(17, -43.5, 0), App.Vector(17, -48.5, 0)),
    Part.LineSegment(App.Vector(17, -48.5, 0), App.Vector(15, -48.5, 0)),
    Part.LineSegment(App.Vector(-17, -48.5, 0), App.Vector(-17, -43.5, 0)),
    Part.LineSegment(App.Vector(-17, -43.5, 0), App.Vector(-15, -43.5, 0)),
    Part.LineSegment(App.Vector(-15, -43.5, 0), App.Vector(-15, -48.5, 0)),
    Part.LineSegment(App.Vector(-15, -48.5, 0), App.Vector(-17, -48.5, 0)),
    Part.LineSegment(App.Vector(-17, -28.5, 0), App.Vector(-17, -23.5, 0)),
    Part.LineSegment(App.Vector(-17, -23.5, 0), App.Vector(-15, -23.5, 0)),
    Part.LineSegment(App.Vector(-15, -23.5, 0), App.Vector(-15, -28.5, 0)),
    Part.LineSegment(App.Vector(-15, -28.5, 0), App.Vector(-17, -28.5, 0)),
    Part.LineSegment(App.Vector(-5, -5, 0), App.Vector(-5, 5, 0)),
    Part.LineSegment(App.Vector(-5, 5, 0), App.Vector(5, 5, 0)),
    Part.LineSegment(App.Vector(5, 5, 0), App.Vector(5, -5, 0)),
    Part.LineSegment(App.Vector(5, -5, 0), App.Vector(-5, -5, 0)),
], False)
sketch3.addConstraint([
    Sketcher.Constraint("Coincident", 0, 2, 1, 1),
    Sketcher.Constraint("Coincident", 1, 2, 2, 1),
    Sketcher.Constraint("Coincident", 2, 2, 3, 1),
    Sketcher.Constraint("Coincident", 3, 2, 0, 1),
    Sketcher.Constraint("Coincident", 4, 2, 5, 1),
    Sketcher.Constraint("Coincident", 5, 2, 6, 1),
    Sketcher.Constraint("Coincident", 6, 2, 7, 1),
    Sketcher.Constraint("Coincident", 7, 2, 4, 1),
    Sketcher.Constraint("Coincident", 8, 2, 9, 1),
    Sketcher.Constraint("Coincident", 9, 2, 10, 1),
    Sketcher.Constraint("Coincident", 10, 2, 11, 1),
    Sketcher.Constraint("Coincident", 11, 2, 8, 1),
    Sketcher.Constraint("Coincident", 12, 2, 13, 1),
    Sketcher.Constraint("Coincident", 13, 2, 14, 1),
    Sketcher.Constraint("Coincident", 14, 2, 15, 1),
    Sketcher.Constraint("Coincident", 15, 2, 12, 1),
    Sketcher.Constraint("Coincident", 16, 2, 17, 1),
    Sketcher.Constraint("Coincident", 17, 2, 18, 1),
    Sketcher.Constraint("Coincident", 18, 2, 19, 1),
    Sketcher.Constraint("Coincident", 19, 2, 16, 1),
    Sketcher.Constraint("Coincident", 20, 2, 21, 1),
    Sketcher.Constraint("Coincident", 21, 2, 22, 1),
    Sketcher.Constraint("Coincident", 22, 2, 23, 1),
    Sketcher.Constraint("Coincident", 23, 2, 20, 1),
    Sketcher.Constraint("Coincident", 24, 2, 25, 1),
    Sketcher.Constraint("Coincident", 25, 2, 26, 1),
    Sketcher.Constraint("Coincident", 26, 2, 27, 1),
    Sketcher.Constraint("Coincident", 27, 2, 24, 1),
    Sketcher.Constraint("Coincident", 28, 2, 29, 1),
    Sketcher.Constraint("Coincident", 29, 2, 30, 1),
    Sketcher.Constraint("Coincident", 30, 2, 31, 1),
    Sketcher.Constraint("Coincident", 31, 2, 28, 1),
    Sketcher.Constraint("Coincident", 32, 2, 33, 1),
    Sketcher.Constraint("Coincident", 33, 2, 34, 1),
    Sketcher.Constraint("Coincident", 34, 2, 35, 1),
    Sketcher.Constraint("Coincident", 35, 2, 32, 1),
    Sketcher.Constraint("Vertical", 0),
    Sketcher.Constraint("Horizontal", 1),
    Sketcher.Constraint("Vertical", 2),
    Sketcher.Constraint("Horizontal", 3),
    Sketcher.Constraint("Vertical", 4),
    Sketcher.Constraint("Horizontal", 5),
    Sketcher.Constraint("Vertical", 6),
    Sketcher.Constraint("Horizontal", 7),
    Sketcher.Constraint("Vertical", 8),
    Sketcher.Constraint("Horizontal", 9),
    Sketcher.Constraint("Vertical", 10),
    Sketcher.Constraint("Horizontal", 11),
    Sketcher.Constraint("Vertical", 12),
    Sketcher.Constraint("Horizontal", 13),
    Sketcher.Constraint("Vertical", 14),
    Sketcher.Constraint("Horizontal", 15),
    Sketcher.Constraint("Vertical", 16),
    Sketcher.Constraint("Horizontal", 17),
    Sketcher.Constraint("Vertical", 18),
    Sketcher.Constraint("Horizontal", 19),
    Sketcher.Constraint("Vertical", 20),
    Sketcher.Constraint("Horizontal", 21),
    Sketcher.Constraint("Vertical", 22),
    Sketcher.Constraint("Horizontal", 23),
    Sketcher.Constraint("Vertical", 24),
    Sketcher.Constraint("Horizontal", 25),
    Sketcher.Constraint("Vertical", 26),
    Sketcher.Constraint("Horizontal", 27),
    Sketcher.Constraint("Vertical", 28),
    Sketcher.Constraint("Horizontal", 29),
    Sketcher.Constraint("Vertical", 30),
    Sketcher.Constraint("Horizontal", 31),
    Sketcher.Constraint("Vertical", 32),
    Sketcher.Constraint("Horizontal", 33),
    Sketcher.Constraint("Vertical", 34),
    Sketcher.Constraint("Horizontal", 35),
    Sketcher.Constraint("Symmetric", 2, 2, 16, 2, -1, 1),
    Sketcher.Constraint("Symmetric", 0, 2, 18, 2, -1, 1),
    Sketcher.Constraint("Symmetric", 6, 2, 20, 2, -1, 1),
    Sketcher.Constraint("Symmetric", 4, 2, 22, 2, -1, 1),
    Sketcher.Constraint("Symmetric", 10, 2, 24, 2, -1, 1),
    Sketcher.Constraint("Symmetric", 8, 2, 26, 2, -1, 1),
    Sketcher.Constraint("Symmetric", 14, 2, 28, 2, -1, 1),
    Sketcher.Constraint("Symmetric", 12, 2, 30, 2, -1, 1),
    Sketcher.Constraint("Symmetric", 32, 2, 34, 2, -1, 1),
    Sketcher.Constraint("Symmetric", 5, 2, 8, 2, -2),
    Sketcher.Constraint("Symmetric", 7, 2, 10, 2, -2),
    Sketcher.Constraint("Symmetric", 1, 2, 12, 2, -2),
    Sketcher.Constraint("Symmetric", 3, 2, 14, 2, -2),
    Sketcher.Constraint("Vertical", 3, 2, 4, 2),
    Sketcher.Constraint("Vertical", 2, 2, 5, 2),
    Sketcher.Constraint("Equal", 2, 4),
    Sketcher.Constraint("Equal", 35, 32),
    Sketcher.Constraint("DistanceX", 1, 1, 1, 2, Q("2 mm")),
    Sketcher.Constraint("DistanceX", 33, 1, 33, 2, Q("10 mm")),
    Sketcher.Constraint("DistanceY", 0, 1, 0, 2, Q("5 mm")),
    Sketcher.Constraint("DistanceX", 0, 2, -1, 1, Q("17 mm")),
    Sketcher.Constraint("DistanceY", 0, 2, 4, 2, Q("20 mm")),
    Sketcher.Constraint("DistanceY", 16, 2, 15, 2, Q("47 mm")),
])
pocket2 = body.newObject("PartDesign::Pocket", "Pocket001")
pocket2.Profile = sketch3
pocket2.Length = 10
pocket2.Reversed = True
doc.recompute()

fillet3 = body.newObject("PartDesign::Fillet", "Fillet002")
fillet3.Base = (pocket2, edges_at(pocket2, [
    (5, 1.587, -5),
    (5, 1.587, 5),
    (-5, 1.587, 5),
    (-5, 1.587, -5),
]))
fillet3.Radius = 3

doc.recompute()
